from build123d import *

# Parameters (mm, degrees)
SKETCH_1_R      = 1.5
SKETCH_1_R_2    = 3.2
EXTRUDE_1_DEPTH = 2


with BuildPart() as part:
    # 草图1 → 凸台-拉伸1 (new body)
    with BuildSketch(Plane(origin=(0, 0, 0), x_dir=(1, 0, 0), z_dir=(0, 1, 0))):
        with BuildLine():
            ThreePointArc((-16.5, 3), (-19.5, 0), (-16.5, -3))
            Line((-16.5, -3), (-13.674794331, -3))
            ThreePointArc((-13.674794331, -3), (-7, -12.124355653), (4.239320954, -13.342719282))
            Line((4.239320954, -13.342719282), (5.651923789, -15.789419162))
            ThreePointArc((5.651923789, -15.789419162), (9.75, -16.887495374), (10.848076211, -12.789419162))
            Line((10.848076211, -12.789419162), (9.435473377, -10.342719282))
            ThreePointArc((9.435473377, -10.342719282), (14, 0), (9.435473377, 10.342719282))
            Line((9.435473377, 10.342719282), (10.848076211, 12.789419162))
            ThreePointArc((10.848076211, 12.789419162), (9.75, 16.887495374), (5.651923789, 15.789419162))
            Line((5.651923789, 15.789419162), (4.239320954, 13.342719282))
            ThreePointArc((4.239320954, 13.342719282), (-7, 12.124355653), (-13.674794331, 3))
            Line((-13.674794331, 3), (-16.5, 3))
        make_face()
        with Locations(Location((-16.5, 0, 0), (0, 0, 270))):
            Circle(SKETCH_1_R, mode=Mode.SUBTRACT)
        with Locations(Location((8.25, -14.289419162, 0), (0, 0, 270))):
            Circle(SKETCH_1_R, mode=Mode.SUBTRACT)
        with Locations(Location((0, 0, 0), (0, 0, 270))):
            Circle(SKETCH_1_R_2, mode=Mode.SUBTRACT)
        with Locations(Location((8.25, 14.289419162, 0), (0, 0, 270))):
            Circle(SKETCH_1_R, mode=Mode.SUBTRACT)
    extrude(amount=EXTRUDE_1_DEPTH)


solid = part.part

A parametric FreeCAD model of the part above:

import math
import FreeCAD as App
import Part
import Sketcher

V = App.Vector
Q = App.Units.Quantity

doc = App.newDocument("Part")
body = doc.addObject("PartDesign::Body", "Body")

sketch1 = body.newObject("Sketcher::SketchObject", "Sketch")
sketch1.AttachmentSupport = (doc.getObject("XZ_Plane"), [""])
sketch1.MapMode = "FlatFace"
sketch1.addGeometry([
    Part.ArcOfCircle(Part.Circle(V(-16.5, 0, 0), V(0, 0, 1), 3), math.radians(90), math.radians(270)),
    Part.LineSegment(V(-16.5, 3, 0), V(-13.674794, 3, 0)),
    Part.ArcOfCircle(Part.Circle(V(0, 0, 0), V(0, 0, 1), 14), math.radians(72.373625), math.radians(167.626375)),
    Part.LineSegment(V(4.239321, 13.342719, 0), V(5.651924, 15.789419, 0)),
    Part.ArcOfCircle(Part.Circle(V(8.25, 14.289419, 0), V(0, 0, 1), 3), math.radians(-30), math.radians(150)),
    Part.LineSegment(V(10.848076, 12.789419, 0), V(9.435473, 10.342719, 0)),
    Part.ArcOfCircle(Part.Circle(V(0, 0, 0), V(0, 0, 1), 14), math.radians(-47.626375), math.radians(47.626375)),
    Part.LineSegment(V(9.435473, -10.342719, 0), V(10.848076, -12.789419, 0)),
    Part.ArcOfCircle(Part.Circle(V(8.25, -14.289419, 0), V(0, 0, 1), 3), math.radians(-150), math.radians(30)),
    Part.LineSegment(V(5.651924, -15.789419, 0), V(4.239321, -13.342719, 0)),
    Part.ArcOfCircle(Part.Circle(V(0, 0, 0), V(0, 0, 1), 14), math.radians(-167.626375), math.radians(-72.373625)),
    Part.LineSegment(V(-13.674794, -3, 0), V(-16.5, -3, 0)),
    Part.Circle(V(8.25, 14.289419, 0), V(0, 0, 1), 1.5),
    Part.Circle(V(-16.5, 0, 0), V(0, 0, 1), 1.5),
    Part.Circle(V(0, 0, 0), V(0, 0, 1), 3.2),
    Part.Circle(V(8.25, -14.289419, 0), V(0, 0, 1), 1.5),
], False)
sketch1.addConstraint([
    Sketcher.Constraint("Tangent", 0, 1, 1, 1),
    Sketcher.Constraint("Coincident", 1, 2, 2, 2),
    Sketcher.Constraint("Coincident", 2, 1, 3, 1),
    Sketcher.Constraint("Tangent", 3, 2, 4, 2),
    Sketcher.Constraint("Tangent", 4, 1, 5, 1),
    Sketcher.Constraint("Coincident", 5, 2, 6, 2),
    Sketcher.Constraint("Coincident", 6, 1, 7, 1),
    Sketcher.Constraint("Tangent", 7, 2, 8, 2),
    Sketcher.Constraint("Tangent", 8, 1, 9, 1),
    Sketcher.Constraint("Coincident", 9, 2, 10, 2),
    Sketcher.Constraint("Coincident", 10, 1, 11, 1),
    Sketcher.Constraint("Tangent", 11, 2, 0, 2),
    Sketcher.Constraint("Horizontal", 1),
    Sketcher.Constraint("Horizontal", 11),
    Sketcher.Constraint("Coincident", 2, 3, -1, 1),
    Sketcher.Constraint("Coincident", 6, 3, -1, 1),
    Sketcher.Constraint("Coincident", 10, 3, -1, 1),
    Sketcher.Constraint("Coincident", 14, 3, -1, 1),
    Sketcher.Constraint("Coincident", 12, 3, 4, 3),
    Sketcher.Constraint("Coincident", 13, 3, 0, 3),
    Sketcher.Constraint("Coincident", 15, 3, 8, 3),
    Sketcher.Constraint("Equal", 0, 4),
    Sketcher.Constraint("Equal", 2, 6),
    Sketcher.Constraint("Equal", 4, 8),
    Sketcher.Constraint("Equal", 6, 10),
    Sketcher.Constraint("Equal", 12, 13),
    Sketcher.Constraint("Equal", 13, 15),
    Sketcher.Constraint("Symmetric", 4, 3, 8, 3, -1),
    Sketcher.Constraint("PointOnObject", 0, 3, -1),
    Sketcher.Constraint("Parallel", 3, 5),
    Sketcher.Constraint("Parallel", 7, 9),
    Sketcher.Constraint("Vertical", 5, 2, 6, 1),
    Sketcher.Constraint("Equal", 3, 5),
    Sketcher.Constraint("Diameter", 12, 3.0),
    Sketcher.Constraint("Radius", 0, 3.0),
    Sketcher.Constraint("Radius", 2, 14.0),
    Sketcher.Constraint("Diameter", 14, 6.4),
    Sketcher.Constraint("Angle", 3, Q("60 deg")),
    Sketcher.Constraint("DistanceX", 0, 3, -1, 1, 16.5),
    Sketcher.Constraint("DistanceX", -1, 1, 4, 3, 8.25),
])
pad1 = body.newObject("PartDesign::Pad", "Pad")
pad1.Profile = sketch1
pad1.Length = 2
pad1.Reversed = True

doc.recompute()
